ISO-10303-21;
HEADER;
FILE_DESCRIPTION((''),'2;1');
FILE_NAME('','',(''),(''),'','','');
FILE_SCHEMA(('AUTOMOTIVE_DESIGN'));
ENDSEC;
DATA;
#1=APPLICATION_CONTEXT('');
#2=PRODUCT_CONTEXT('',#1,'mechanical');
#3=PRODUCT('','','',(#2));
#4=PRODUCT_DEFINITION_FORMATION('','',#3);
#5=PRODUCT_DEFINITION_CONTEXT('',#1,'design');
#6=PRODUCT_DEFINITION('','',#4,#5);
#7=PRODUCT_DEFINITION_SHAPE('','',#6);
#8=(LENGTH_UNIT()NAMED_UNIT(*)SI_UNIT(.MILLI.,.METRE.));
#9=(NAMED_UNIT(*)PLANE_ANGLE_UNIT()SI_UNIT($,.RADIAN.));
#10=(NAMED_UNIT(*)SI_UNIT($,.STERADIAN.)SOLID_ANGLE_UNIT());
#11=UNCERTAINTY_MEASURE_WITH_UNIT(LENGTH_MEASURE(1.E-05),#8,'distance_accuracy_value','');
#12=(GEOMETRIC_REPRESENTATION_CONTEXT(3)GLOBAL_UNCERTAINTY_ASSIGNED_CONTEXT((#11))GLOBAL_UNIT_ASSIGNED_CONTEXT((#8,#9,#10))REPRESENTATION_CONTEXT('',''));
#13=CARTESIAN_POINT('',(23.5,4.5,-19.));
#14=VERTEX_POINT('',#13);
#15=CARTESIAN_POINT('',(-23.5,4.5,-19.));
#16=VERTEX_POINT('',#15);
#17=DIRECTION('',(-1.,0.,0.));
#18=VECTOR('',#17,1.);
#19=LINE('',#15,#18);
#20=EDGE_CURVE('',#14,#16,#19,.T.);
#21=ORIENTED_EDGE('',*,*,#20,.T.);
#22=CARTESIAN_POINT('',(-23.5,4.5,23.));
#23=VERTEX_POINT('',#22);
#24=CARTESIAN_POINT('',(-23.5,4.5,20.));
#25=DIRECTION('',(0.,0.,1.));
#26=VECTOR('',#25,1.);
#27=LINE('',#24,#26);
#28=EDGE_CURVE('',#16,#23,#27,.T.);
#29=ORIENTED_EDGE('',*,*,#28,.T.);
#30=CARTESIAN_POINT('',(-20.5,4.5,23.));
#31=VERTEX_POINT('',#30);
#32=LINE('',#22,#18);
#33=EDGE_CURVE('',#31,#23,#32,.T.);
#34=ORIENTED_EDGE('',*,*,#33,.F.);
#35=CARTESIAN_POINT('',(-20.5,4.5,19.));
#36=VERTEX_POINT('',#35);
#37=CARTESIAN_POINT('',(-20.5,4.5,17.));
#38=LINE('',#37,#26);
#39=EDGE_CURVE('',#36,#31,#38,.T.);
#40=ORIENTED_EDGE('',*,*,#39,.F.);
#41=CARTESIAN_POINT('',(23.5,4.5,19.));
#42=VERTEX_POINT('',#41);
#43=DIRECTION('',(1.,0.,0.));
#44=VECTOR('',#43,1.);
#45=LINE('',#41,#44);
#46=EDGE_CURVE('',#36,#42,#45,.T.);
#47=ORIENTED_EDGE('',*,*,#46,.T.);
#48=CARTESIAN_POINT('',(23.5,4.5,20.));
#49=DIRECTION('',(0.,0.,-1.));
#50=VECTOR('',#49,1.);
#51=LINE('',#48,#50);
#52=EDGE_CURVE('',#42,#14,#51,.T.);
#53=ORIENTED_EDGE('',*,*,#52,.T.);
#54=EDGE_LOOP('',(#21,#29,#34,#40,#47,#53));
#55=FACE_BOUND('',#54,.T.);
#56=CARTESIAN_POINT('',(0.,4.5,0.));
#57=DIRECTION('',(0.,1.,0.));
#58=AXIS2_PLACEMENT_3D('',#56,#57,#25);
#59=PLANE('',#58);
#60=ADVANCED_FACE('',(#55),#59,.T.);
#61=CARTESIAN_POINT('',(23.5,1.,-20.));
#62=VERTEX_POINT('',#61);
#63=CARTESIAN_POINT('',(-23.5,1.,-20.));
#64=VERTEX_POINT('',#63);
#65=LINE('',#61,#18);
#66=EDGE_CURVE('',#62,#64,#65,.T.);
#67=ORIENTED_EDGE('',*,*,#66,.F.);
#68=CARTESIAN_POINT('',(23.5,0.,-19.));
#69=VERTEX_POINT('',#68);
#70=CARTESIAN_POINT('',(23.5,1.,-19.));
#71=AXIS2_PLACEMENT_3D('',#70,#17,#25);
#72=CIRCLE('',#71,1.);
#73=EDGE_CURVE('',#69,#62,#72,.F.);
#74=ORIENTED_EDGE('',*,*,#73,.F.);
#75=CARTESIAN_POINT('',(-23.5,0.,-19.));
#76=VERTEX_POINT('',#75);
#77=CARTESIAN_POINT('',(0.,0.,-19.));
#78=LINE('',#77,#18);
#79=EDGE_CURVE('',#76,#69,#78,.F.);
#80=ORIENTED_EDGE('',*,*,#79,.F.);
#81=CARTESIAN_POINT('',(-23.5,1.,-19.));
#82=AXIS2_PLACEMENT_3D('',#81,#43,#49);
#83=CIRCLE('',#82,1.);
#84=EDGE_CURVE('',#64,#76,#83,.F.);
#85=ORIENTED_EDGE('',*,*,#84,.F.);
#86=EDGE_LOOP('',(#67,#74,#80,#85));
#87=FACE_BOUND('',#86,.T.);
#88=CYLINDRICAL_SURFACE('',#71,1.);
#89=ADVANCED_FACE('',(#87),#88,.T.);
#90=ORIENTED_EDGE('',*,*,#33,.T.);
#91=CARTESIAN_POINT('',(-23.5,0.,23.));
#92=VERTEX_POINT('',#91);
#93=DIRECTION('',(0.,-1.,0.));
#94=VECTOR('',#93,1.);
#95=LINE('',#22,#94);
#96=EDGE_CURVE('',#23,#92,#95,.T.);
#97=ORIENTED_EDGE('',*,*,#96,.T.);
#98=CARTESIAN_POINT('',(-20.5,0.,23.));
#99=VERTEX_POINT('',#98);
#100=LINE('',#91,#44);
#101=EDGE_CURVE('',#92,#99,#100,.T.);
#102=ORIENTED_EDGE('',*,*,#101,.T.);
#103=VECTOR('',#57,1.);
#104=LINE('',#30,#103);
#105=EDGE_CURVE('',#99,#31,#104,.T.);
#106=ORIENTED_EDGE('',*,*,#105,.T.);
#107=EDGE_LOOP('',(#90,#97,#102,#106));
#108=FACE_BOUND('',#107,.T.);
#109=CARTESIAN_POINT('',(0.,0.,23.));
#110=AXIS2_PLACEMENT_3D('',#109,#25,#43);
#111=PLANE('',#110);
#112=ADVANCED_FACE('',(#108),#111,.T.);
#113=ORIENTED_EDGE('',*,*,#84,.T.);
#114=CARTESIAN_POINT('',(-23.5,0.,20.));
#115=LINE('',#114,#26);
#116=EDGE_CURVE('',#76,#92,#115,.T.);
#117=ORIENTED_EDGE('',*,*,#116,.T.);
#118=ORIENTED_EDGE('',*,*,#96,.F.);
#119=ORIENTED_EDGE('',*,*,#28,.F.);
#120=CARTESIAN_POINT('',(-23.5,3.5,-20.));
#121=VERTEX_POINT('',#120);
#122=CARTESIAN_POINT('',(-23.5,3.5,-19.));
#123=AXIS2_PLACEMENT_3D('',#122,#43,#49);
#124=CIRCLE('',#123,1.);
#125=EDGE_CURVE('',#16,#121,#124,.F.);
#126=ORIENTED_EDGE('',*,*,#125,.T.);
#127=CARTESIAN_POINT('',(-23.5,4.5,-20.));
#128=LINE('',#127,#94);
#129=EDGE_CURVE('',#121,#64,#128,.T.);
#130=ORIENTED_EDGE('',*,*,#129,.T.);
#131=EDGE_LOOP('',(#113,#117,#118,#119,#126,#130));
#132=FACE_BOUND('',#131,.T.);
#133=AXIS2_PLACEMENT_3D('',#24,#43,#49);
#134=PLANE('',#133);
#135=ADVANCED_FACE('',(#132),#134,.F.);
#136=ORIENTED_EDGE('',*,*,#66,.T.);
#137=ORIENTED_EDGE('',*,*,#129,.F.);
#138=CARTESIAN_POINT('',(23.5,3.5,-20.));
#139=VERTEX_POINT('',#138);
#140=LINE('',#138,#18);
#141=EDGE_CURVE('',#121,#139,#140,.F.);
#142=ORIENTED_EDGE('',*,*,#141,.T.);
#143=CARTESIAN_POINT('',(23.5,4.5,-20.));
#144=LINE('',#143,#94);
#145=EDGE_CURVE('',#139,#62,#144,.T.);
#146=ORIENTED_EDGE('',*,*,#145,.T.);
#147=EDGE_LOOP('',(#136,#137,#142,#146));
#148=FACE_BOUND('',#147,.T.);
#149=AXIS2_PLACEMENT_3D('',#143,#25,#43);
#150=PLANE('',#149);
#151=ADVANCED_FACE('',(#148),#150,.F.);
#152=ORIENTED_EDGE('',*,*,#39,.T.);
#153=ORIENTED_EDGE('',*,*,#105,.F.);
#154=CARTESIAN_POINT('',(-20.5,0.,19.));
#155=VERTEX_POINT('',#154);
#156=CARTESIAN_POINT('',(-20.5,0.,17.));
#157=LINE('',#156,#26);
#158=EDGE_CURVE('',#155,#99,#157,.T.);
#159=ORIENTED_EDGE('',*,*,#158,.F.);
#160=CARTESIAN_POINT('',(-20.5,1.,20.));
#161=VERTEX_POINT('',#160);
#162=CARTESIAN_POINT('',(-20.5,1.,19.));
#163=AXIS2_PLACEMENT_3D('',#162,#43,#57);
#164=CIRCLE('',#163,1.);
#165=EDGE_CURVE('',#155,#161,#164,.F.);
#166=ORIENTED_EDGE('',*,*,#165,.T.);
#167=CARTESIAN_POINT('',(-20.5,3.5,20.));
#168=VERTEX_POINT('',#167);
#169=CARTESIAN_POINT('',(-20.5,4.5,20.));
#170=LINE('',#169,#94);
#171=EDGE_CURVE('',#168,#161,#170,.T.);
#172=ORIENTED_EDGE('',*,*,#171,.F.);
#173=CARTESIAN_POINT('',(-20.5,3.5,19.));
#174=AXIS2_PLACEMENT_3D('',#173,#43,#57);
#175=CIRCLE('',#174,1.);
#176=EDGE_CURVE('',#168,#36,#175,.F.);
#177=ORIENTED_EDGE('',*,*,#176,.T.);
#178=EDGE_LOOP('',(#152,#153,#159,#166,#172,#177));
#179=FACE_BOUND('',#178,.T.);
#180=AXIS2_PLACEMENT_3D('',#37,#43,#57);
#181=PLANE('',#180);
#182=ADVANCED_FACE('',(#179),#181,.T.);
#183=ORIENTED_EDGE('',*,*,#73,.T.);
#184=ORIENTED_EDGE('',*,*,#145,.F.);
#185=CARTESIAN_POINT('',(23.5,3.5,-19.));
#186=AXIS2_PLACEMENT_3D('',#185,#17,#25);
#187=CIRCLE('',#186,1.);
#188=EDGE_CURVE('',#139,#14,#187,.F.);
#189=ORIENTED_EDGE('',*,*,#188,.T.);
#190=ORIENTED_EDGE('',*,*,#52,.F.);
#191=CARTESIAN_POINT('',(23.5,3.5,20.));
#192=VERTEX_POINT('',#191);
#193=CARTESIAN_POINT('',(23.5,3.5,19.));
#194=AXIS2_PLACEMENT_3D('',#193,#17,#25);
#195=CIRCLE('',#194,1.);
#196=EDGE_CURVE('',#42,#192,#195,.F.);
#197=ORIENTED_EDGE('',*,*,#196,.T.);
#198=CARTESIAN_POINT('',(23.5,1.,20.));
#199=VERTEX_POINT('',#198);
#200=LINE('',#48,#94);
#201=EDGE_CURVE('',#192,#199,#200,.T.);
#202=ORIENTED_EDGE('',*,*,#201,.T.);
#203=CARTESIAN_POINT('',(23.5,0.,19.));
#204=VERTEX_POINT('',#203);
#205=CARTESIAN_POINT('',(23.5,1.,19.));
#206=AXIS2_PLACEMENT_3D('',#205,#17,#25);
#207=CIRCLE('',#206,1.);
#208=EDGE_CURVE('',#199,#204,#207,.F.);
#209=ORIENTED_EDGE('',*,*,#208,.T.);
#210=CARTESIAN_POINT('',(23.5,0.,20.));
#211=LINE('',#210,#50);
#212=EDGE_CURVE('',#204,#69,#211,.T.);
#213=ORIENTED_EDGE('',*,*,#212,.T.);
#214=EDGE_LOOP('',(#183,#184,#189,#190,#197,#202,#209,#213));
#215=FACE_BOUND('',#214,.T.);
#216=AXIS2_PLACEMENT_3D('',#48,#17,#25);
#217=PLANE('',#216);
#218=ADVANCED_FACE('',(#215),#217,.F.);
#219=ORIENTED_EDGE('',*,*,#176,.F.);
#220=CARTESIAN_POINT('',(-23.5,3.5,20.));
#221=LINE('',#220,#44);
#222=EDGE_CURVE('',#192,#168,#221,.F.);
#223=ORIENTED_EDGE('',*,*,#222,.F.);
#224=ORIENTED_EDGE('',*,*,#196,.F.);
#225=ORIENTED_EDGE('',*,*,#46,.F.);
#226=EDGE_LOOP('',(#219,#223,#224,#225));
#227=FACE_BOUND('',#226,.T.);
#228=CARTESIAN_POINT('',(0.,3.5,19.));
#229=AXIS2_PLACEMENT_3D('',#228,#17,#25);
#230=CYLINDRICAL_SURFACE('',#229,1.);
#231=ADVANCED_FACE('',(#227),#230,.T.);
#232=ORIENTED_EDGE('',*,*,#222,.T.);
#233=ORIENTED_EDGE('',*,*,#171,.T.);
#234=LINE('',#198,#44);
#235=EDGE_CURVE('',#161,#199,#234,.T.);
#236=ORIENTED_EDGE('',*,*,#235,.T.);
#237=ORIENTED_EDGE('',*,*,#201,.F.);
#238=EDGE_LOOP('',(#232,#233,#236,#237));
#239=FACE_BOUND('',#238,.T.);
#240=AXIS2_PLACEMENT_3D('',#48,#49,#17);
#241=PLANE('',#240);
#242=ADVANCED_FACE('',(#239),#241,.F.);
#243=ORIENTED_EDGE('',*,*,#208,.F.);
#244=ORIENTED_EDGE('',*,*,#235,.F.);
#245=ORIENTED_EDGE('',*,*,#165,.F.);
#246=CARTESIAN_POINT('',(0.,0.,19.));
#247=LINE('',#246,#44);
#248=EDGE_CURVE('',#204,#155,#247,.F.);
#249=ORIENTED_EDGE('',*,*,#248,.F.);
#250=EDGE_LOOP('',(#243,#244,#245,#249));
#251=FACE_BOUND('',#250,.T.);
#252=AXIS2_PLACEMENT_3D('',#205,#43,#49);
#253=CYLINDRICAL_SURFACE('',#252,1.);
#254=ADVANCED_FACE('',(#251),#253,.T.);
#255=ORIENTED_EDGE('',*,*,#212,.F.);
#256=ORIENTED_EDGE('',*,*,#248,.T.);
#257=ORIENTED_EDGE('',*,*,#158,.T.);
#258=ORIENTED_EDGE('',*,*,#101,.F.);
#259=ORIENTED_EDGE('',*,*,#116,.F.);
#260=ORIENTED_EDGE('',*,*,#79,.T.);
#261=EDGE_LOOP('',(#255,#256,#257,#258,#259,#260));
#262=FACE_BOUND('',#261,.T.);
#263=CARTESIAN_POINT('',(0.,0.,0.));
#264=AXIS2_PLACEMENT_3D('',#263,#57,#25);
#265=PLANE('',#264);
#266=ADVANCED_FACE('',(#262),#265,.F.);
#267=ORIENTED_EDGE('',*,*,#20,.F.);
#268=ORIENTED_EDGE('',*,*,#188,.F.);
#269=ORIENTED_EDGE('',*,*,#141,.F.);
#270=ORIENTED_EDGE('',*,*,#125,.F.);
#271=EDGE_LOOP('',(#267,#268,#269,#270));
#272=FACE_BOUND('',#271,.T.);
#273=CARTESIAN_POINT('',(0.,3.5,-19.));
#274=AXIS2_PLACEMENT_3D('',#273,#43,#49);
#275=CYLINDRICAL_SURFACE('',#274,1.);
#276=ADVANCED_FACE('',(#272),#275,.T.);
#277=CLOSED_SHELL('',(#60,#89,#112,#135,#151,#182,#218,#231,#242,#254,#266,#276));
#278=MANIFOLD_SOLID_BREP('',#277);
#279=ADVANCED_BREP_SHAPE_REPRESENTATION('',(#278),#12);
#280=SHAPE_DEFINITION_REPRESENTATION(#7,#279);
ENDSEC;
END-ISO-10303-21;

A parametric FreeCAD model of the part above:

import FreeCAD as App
import Part
import Sketcher

V = App.Vector


def edges_at(feature, points):
    """Names of the edges that pass closest to the given points."""
    edges = feature.Shape.Edges
    near = lambda p: min(range(len(edges)), key=lambda i: edges[i].distToShape(Part.Vertex(*p))[0])
    return sorted({f"Edge{near(p) + 1}" for p in points})


def add_polygon(sketch, points):
    """Adds a closed chain of lines whose ends are joined by coincident constraints."""
    first, n = sketch.GeometryCount, len(points)
    for a, b in zip(points, points[1:] + points[:1]):
        sketch.addGeometry(Part.LineSegment(App.Vector(*a, 0), App.Vector(*b, 0)), False)
    for i in range(n):
        sketch.addConstraint(Sketcher.Constraint("Coincident", first + i, 2, first + (i + 1) % n, 1))

doc = App.newDocument("Part")
body = doc.addObject("PartDesign::Body", "Body")

# Sketch on XZ plane
sketch1 = body.newObject("Sketcher::SketchObject", "Sketch")
sketch1.AttachmentSupport = (doc.getObject("XZ_Plane"), [""])
sketch1.MapMode = "FlatFace"
add_polygon(sketch1, [(-24, -20), (-24, 20), (24, 20), (24, -20)])  # lines 0-3
sketch1.addConstraint([
    Sketcher.Constraint("Vertical", 0),
    Sketcher.Constraint("Horizontal", 1),
    Sketcher.Constraint("Vertical", 2),
    Sketcher.Constraint("Horizontal", 3),
    Sketcher.Constraint("Symmetric", 0, 2, 2, 2, -1, 1),
    Sketcher.Constraint("DistanceX", 1, 1, 1, 2, 47.0),
    Sketcher.Constraint("DistanceY", 0, 1, 0, 2, 40.0),
])
pad1 = body.newObject("PartDesign::Pad", "Pad")
pad1.Profile = sketch1
pad1.Length = 4.5
pad1.Reversed = True
doc.recompute()

fillet = body.newObject("PartDesign::Fillet", "Fillet")
fillet.Base = (pad1, edges_at(pad1, [
    (0, 4.5, -20),
    (0, 0, -20),
    (0, 0, 20),
    (0, 4.5, 20),
]))
fillet.Radius = 1

# Sketch on XY plane
sketch2 = body.newObject("Sketcher::SketchObject", "Sketch001")
sketch2.AttachmentSupport = (doc.getObject("XY_Plane"), [""])
sketch2.MapMode = "FlatFace"
sketch2.AttachmentOffset = App.Placement(V(0, 0, 20), App.Rotation())
add_polygon(sketch2, [(-23.5, 4.5), (-23.5, 0), (-20.5, 0), (-20.5, 4.5)])  # lines 0-3
sketch2.addConstraint([
    Sketcher.Constraint("Vertical", 0),
    Sketcher.Constraint("Horizontal", 1),
    Sketcher.Constraint("Vertical", 2),
    Sketcher.Constraint("Horizontal", 3),
    Sketcher.Constraint("PointOnObject", 0, 2, -1),
    Sketcher.Constraint("DistanceX", 1, 1, 1, 2, 3.0),
    Sketcher.Constraint("DistanceY", 0, 2, 0, 1, 4.5),
    Sketcher.Constraint("DistanceX", 0, 2, -1, 1, 23.5),
])
pad2 = body.newObject("PartDesign::Pad", "Pad001")
pad2.Profile = sketch2
pad2.Type = "TwoLengths"
pad2.Length = 3
pad2.Length2 = 3

doc.recompute()
